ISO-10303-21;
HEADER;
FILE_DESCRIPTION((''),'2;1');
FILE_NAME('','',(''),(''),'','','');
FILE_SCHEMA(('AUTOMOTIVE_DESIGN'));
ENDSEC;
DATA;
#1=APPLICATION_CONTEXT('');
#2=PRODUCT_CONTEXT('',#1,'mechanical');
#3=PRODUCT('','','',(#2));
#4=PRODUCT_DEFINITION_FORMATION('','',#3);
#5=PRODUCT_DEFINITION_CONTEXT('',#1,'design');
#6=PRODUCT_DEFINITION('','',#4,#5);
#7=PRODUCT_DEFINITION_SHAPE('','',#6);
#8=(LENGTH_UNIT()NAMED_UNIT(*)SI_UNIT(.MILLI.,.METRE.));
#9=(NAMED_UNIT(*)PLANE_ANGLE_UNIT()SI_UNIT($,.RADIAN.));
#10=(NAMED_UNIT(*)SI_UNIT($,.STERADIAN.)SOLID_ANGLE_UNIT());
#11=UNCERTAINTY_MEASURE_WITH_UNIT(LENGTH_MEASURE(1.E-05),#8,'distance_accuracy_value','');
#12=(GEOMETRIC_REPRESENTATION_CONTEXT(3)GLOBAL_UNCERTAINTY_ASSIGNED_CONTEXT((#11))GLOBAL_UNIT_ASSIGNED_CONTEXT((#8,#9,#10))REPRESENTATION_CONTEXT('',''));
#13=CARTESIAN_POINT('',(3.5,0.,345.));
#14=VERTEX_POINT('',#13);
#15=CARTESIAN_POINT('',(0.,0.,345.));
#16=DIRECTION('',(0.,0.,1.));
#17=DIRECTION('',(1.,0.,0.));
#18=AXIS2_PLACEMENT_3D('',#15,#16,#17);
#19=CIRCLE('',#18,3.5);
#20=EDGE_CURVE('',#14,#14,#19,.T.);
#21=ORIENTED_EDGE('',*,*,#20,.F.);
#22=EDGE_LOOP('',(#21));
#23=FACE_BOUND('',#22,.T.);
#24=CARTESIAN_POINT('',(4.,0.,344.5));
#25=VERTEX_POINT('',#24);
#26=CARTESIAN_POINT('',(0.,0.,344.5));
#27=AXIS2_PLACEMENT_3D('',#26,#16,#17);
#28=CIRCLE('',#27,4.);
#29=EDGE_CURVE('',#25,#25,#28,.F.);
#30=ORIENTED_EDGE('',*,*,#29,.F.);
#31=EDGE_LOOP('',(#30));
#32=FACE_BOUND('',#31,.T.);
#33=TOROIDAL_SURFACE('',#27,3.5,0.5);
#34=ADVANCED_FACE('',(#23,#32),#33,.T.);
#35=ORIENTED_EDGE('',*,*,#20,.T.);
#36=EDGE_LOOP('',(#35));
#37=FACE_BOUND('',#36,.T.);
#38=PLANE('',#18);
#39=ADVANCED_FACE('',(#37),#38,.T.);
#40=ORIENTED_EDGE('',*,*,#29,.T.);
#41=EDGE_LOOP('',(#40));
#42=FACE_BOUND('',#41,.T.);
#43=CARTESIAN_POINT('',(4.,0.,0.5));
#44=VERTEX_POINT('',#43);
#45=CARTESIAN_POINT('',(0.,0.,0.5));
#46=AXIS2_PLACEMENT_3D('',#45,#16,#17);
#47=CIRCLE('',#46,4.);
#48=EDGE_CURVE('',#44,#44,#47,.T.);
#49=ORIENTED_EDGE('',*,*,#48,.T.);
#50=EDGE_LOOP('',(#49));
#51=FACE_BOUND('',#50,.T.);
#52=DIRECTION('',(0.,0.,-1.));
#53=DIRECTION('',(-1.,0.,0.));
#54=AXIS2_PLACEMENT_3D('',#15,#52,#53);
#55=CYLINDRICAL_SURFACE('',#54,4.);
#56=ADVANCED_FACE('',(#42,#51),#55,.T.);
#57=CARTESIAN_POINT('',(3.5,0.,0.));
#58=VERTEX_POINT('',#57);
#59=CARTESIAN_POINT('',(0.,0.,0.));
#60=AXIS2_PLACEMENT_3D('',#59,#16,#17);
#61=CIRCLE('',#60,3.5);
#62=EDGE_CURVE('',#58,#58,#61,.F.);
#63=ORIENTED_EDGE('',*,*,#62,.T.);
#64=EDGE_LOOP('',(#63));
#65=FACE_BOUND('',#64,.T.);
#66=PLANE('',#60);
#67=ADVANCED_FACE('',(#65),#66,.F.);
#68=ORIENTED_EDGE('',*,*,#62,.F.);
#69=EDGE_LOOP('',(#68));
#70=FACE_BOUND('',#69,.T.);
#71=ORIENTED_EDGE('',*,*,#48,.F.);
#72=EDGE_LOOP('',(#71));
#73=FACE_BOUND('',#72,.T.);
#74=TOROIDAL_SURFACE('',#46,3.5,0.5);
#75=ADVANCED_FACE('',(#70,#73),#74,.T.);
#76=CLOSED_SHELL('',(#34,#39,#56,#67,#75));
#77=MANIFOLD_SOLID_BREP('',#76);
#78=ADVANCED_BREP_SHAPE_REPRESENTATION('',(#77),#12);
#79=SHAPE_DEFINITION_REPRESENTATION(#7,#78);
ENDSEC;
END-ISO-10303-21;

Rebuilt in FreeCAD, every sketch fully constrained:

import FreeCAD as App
import Part
import Sketcher

V = App.Vector


def edges_at(feature, points):
    """Names of the edges that pass closest to the given points."""
    edges = feature.Shape.Edges
    near = lambda p: min(range(len(edges)), key=lambda i: edges[i].distToShape(Part.Vertex(*p))[0])
    return sorted({f"Edge{near(p) + 1}" for p in points})

doc = App.newDocument("Part")
body = doc.addObject("PartDesign::Body", "Body")

# Sketch on XY plane
sketch1 = body.newObject("Sketcher::SketchObject", "Sketch")
sketch1.AttachmentSupport = (doc.getObject("XY_Plane"), [""])
sketch1.MapMode = "FlatFace"
sketch1.addGeometry(Part.Circle(V(0, 0, 0), V(0, 0, 1), 4), False)
sketch1.addConstraint([
    Sketcher.Constraint("Coincident", 0, 3, -1, 1),
    Sketcher.Constraint("Diameter", 0, 8.0),
])
pad1 = body.newObject("PartDesign::Pad", "Pad")
pad1.Profile = sketch1
pad1.Length = 345
doc.recompute()

fillet = body.newObject("PartDesign::Fillet", "Fillet")
fillet.Base = (pad1, edges_at(pad1, [(-4, 0, 0), (-4, 0, 345)]))
fillet.Radius = 0.5

doc.recompute()
